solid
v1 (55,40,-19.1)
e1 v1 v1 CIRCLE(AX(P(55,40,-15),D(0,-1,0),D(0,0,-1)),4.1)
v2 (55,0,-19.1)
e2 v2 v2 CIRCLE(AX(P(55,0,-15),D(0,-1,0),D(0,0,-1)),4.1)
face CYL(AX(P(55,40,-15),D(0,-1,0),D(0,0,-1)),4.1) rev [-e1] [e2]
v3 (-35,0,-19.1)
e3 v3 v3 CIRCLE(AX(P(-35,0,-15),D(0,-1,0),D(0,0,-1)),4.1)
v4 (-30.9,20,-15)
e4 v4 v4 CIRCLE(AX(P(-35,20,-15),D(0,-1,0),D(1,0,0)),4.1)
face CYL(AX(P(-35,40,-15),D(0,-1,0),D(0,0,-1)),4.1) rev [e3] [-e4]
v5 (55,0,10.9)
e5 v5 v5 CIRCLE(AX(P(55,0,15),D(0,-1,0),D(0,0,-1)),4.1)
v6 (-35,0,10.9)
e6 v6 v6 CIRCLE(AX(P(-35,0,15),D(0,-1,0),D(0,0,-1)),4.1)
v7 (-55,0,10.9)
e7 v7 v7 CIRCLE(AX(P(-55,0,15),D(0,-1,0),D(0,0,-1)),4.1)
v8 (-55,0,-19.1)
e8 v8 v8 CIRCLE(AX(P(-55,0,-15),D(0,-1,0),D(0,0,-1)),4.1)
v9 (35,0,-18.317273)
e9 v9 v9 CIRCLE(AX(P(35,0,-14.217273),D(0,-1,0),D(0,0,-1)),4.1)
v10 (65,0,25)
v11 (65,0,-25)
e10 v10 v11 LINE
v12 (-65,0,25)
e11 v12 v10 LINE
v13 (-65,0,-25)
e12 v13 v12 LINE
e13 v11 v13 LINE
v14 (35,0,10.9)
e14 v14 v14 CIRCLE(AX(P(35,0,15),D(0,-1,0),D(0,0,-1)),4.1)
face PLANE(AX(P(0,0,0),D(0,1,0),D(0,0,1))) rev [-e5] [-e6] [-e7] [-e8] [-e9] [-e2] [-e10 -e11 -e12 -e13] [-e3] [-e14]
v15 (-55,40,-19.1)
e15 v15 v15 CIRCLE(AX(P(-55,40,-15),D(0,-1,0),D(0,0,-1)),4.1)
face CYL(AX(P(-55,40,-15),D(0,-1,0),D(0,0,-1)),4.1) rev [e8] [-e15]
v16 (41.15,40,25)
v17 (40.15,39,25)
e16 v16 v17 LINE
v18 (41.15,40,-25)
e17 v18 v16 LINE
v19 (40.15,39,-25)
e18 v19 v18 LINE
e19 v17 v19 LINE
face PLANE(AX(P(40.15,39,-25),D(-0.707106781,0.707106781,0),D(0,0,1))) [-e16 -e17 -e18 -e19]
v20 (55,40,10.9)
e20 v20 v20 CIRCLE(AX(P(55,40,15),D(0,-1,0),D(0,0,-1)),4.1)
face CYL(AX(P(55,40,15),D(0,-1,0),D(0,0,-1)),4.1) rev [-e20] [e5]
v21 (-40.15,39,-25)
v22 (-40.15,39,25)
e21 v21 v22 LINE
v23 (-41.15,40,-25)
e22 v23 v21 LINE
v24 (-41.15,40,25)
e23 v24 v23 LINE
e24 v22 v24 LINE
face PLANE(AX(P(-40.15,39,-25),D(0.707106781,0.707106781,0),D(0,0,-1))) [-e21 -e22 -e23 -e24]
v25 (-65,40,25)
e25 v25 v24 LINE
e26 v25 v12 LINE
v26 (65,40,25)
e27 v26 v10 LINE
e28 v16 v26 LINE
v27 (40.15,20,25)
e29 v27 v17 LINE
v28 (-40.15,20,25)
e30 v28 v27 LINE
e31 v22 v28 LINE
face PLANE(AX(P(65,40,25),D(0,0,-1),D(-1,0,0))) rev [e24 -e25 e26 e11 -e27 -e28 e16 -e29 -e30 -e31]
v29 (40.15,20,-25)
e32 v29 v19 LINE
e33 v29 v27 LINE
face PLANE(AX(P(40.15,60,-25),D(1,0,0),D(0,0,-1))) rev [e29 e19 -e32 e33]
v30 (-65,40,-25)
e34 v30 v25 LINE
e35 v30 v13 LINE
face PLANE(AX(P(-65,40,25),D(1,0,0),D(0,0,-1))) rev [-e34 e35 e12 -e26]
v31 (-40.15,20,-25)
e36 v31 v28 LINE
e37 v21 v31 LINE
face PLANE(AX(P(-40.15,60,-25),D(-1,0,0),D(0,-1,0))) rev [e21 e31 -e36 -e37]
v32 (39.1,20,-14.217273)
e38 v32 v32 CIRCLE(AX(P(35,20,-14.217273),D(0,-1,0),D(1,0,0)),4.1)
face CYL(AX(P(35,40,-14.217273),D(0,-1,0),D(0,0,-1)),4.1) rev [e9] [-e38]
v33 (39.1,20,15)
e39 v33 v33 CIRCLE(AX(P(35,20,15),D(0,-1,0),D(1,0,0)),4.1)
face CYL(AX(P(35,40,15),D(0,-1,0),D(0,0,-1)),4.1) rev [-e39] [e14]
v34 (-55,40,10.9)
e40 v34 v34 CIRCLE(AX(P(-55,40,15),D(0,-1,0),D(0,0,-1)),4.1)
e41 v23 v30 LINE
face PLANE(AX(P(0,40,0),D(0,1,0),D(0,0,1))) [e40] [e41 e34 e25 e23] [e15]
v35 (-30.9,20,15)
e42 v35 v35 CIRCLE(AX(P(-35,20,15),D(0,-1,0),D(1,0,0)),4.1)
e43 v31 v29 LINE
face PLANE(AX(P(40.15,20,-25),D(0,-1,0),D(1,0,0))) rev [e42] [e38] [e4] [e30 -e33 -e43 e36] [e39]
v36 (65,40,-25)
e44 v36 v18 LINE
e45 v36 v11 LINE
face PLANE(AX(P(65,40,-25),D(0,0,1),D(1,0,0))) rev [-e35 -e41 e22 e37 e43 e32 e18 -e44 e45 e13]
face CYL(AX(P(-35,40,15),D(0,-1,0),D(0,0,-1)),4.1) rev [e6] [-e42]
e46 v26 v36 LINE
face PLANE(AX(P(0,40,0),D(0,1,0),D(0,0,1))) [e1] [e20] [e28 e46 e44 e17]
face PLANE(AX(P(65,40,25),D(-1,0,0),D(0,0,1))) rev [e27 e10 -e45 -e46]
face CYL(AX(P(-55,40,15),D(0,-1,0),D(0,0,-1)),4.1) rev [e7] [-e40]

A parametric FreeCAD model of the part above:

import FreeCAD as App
import Part
import Sketcher

V = App.Vector


def edges_at(feature, points):
    """Names of the edges that pass closest to the given points."""
    edges = feature.Shape.Edges
    near = lambda p: min(range(len(edges)), key=lambda i: edges[i].distToShape(Part.Vertex(*p))[0])
    return sorted({f"Edge{near(p) + 1}" for p in points})


def add_polygon(sketch, points):
    """Adds a closed chain of lines whose ends are joined by coincident constraints."""
    first, n = sketch.GeometryCount, len(points)
    for a, b in zip(points, points[1:] + points[:1]):
        sketch.addGeometry(Part.LineSegment(App.Vector(*a, 0), App.Vector(*b, 0)), False)
    for i in range(n):
        sketch.addConstraint(Sketcher.Constraint("Coincident", first + i, 2, first + (i + 1) % n, 1))

doc = App.newDocument("Part")
params = doc.addObject("Spreadsheet::Sheet", "Params")
for row, (alias, value) in enumerate([
    ("sketch1_width", "130 mm"),
    ("sketch1_height", "50 mm"),
    ("pad1_length", "40 mm"),
    ("sketch2_height", "40 mm"),
    ("sketch2_width", "80.3 mm"),
    ("sketch3_diameter", "8.2 mm"),
    ("chamfer_size", "1 mm"),
    ("sketch4_diameter", "8.2 mm"),
], start=1):
    params.set(f"A{row}", alias)
    params.set(f"B{row}", "=" + value)
    params.setAlias(f"B{row}", alias)

body = doc.addObject("PartDesign::Body", "Body")

sketch1 = body.newObject("Sketcher::SketchObject", "Sketch")
sketch1.AttachmentSupport = (doc.getObject("XZ_Plane"), [""])
sketch1.MapMode = "FlatFace"
add_polygon(sketch1, [(-65, -25), (-65, 25), (65, 25), (65, -25)])
sketch1.addConstraint(Sketcher.Constraint("Vertical", 0))
sketch1.addConstraint(Sketcher.Constraint("Horizontal", 1))
sketch1.addConstraint(Sketcher.Constraint("Vertical", 2))
sketch1.addConstraint(Sketcher.Constraint("Horizontal", 3))
sketch1.addConstraint(Sketcher.Constraint("Symmetric", 0, 2, 2, 2, -1, 1))
sketch1.addConstraint(Sketcher.Constraint("DistanceX", 1, 1, 1, 2, 130.0))
sketch1.addConstraint(Sketcher.Constraint("DistanceY", 0, 1, 0, 2, 50.0))
sketch1.setExpression("Constraints[9]", "Params.sketch1_width")
sketch1.setExpression("Constraints[10]", "Params.sketch1_height")
pad1 = body.newObject("PartDesign::Pad", "Pad")
pad1.Profile = sketch1
pad1.setExpression("Length", "Params.pad1_length")
pad1.Reversed = True

sketch2 = body.newObject("Sketcher::SketchObject", "Sketch001")
sketch2.AttachmentSupport = (doc.getObject("XY_Plane"), [""])
sketch2.MapMode = "FlatFace"
sketch2.AttachmentOffset = App.Placement(V(0, 0, 25), App.Rotation())
add_polygon(sketch2, [(-40.15, 60), (-40.15, 20), (40.15, 20), (40.15, 60)])
sketch2.addConstraint(Sketcher.Constraint("Vertical", 0))
sketch2.addConstraint(Sketcher.Constraint("Horizontal", 1))
sketch2.addConstraint(Sketcher.Constraint("Vertical", 2))
sketch2.addConstraint(Sketcher.Constraint("Horizontal", 3))
sketch2.addConstraint(Sketcher.Constraint("DistanceY", 0, 2, 0, 1, 40.0))
sketch2.addConstraint(Sketcher.Constraint("DistanceX", 1, 1, 1, 2, 80.3))
sketch2.addConstraint(Sketcher.Constraint("DistanceY", -1, 1, 0, 2, 20.0))
sketch2.addConstraint(Sketcher.Constraint("DistanceX", 0, 2, -1, 1, 40.15))
sketch2.setExpression("Constraints[8]", "Params.sketch2_height")
sketch2.setExpression("Constraints[9]", "Params.sketch2_width")
pocket1 = body.newObject("PartDesign::Pocket", "Pocket")
pocket1.Profile = sketch2
pocket1.Type = "ThroughAll"

sketch3 = body.newObject("Sketcher::SketchObject", "Sketch002")
sketch3.AttachmentSupport = (doc.getObject("XZ_Plane"), [""])
sketch3.MapMode = "FlatFace"
sketch3.addGeometry(Part.Circle(V(-35, 15, 0), V(0, 0, 1), 4.1), False)
sketch3.addGeometry(Part.Circle(V(-35, -15, 0), V(0, 0, 1), 4.1), False)
sketch3.addGeometry(Part.Circle(V(35, -14.217273, 0), V(0, 0, 1), 4.1), False)
sketch3.addGeometry(Part.Circle(V(35, 15, 0), V(0, 0, 1), 4.1), False)
sketch3.addConstraint(Sketcher.Constraint("Equal", 0, 1))
sketch3.addConstraint(Sketcher.Constraint("Equal", 1, 2))
sketch3.addConstraint(Sketcher.Constraint("Equal", 2, 3))
sketch3.addConstraint(Sketcher.Constraint("Symmetric", 1, 3, 3, 3, -1, 1))
sketch3.addConstraint(Sketcher.Constraint("Symmetric", 0, 3, 3, 3, -2))
sketch3.addConstraint(Sketcher.Constraint("Vertical", 2, 3, 3, 3))
sketch3.addConstraint(Sketcher.Constraint("Diameter", 0, 8.2))
sketch3.addConstraint(Sketcher.Constraint("DistanceX", 0, 3, -1, 1, 35.0))
sketch3.addConstraint(Sketcher.Constraint("DistanceY", -1, 1, 0, 3, 15.0))
sketch3.addConstraint(Sketcher.Constraint("DistanceY", 2, 3, -1, 1, 14.217273))
sketch3.setExpression("Constraints[6]", "Params.sketch3_diameter")
pocket2 = body.newObject("PartDesign::Pocket", "Pocket001")
pocket2.Profile = sketch3
pocket2.Type = "ThroughAll"
doc.recompute()

chamfer = body.newObject("PartDesign::Chamfer", "Chamfer")
chamfer.Base = (pocket2, edges_at(pocket2, [(40.15, 40, 0), (-40.15, 40, 0)]))
chamfer.setExpression("Size", "Params.chamfer_size")

sketch4 = body.newObject("Sketcher::SketchObject", "Sketch003")
sketch4.AttachmentSupport = (doc.getObject("XZ_Plane"), [""])
sketch4.MapMode = "FlatFace"
sketch4.addGeometry(Part.Circle(V(-55, 15, 0), V(0, 0, 1), 4.1), False)
sketch4.addGeometry(Part.Circle(V(-55, -15, 0), V(0, 0, 1), 4.1), False)
sketch4.addGeometry(Part.Circle(V(55, 15, 0), V(0, 0, 1), 4.1), False)
sketch4.addGeometry(Part.Circle(V(55, -15, 0), V(0, 0, 1), 4.1), False)
sketch4.addConstraint(Sketcher.Constraint("Equal", 0, 1))
sketch4.addConstraint(Sketcher.Constraint("Equal", 1, 2))
sketch4.addConstraint(Sketcher.Constraint("Equal", 2, 3))
sketch4.addConstraint(Sketcher.Constraint("Symmetric", 1, 3, 2, 3, -1, 1))
sketch4.addConstraint(Sketcher.Constraint("Symmetric", 0, 3, 3, 3, -1, 1))
sketch4.addConstraint(Sketcher.Constraint("Symmetric", 0, 3, 2, 3, -2))
sketch4.addConstraint(Sketcher.Constraint("Diameter", 0, 8.2))
sketch4.addConstraint(Sketcher.Constraint("DistanceX", 0, 3, -1, 1, 55.0))
sketch4.addConstraint(Sketcher.Constraint("DistanceY", -1, 1, 0, 3, 15.0))
sketch4.setExpression("Constraints[6]", "Params.sketch4_diameter")
pocket3 = body.newObject("PartDesign::Pocket", "Pocket002")
pocket3.Profile = sketch4
pocket3.Type = "ThroughAll"

doc.recompute()
